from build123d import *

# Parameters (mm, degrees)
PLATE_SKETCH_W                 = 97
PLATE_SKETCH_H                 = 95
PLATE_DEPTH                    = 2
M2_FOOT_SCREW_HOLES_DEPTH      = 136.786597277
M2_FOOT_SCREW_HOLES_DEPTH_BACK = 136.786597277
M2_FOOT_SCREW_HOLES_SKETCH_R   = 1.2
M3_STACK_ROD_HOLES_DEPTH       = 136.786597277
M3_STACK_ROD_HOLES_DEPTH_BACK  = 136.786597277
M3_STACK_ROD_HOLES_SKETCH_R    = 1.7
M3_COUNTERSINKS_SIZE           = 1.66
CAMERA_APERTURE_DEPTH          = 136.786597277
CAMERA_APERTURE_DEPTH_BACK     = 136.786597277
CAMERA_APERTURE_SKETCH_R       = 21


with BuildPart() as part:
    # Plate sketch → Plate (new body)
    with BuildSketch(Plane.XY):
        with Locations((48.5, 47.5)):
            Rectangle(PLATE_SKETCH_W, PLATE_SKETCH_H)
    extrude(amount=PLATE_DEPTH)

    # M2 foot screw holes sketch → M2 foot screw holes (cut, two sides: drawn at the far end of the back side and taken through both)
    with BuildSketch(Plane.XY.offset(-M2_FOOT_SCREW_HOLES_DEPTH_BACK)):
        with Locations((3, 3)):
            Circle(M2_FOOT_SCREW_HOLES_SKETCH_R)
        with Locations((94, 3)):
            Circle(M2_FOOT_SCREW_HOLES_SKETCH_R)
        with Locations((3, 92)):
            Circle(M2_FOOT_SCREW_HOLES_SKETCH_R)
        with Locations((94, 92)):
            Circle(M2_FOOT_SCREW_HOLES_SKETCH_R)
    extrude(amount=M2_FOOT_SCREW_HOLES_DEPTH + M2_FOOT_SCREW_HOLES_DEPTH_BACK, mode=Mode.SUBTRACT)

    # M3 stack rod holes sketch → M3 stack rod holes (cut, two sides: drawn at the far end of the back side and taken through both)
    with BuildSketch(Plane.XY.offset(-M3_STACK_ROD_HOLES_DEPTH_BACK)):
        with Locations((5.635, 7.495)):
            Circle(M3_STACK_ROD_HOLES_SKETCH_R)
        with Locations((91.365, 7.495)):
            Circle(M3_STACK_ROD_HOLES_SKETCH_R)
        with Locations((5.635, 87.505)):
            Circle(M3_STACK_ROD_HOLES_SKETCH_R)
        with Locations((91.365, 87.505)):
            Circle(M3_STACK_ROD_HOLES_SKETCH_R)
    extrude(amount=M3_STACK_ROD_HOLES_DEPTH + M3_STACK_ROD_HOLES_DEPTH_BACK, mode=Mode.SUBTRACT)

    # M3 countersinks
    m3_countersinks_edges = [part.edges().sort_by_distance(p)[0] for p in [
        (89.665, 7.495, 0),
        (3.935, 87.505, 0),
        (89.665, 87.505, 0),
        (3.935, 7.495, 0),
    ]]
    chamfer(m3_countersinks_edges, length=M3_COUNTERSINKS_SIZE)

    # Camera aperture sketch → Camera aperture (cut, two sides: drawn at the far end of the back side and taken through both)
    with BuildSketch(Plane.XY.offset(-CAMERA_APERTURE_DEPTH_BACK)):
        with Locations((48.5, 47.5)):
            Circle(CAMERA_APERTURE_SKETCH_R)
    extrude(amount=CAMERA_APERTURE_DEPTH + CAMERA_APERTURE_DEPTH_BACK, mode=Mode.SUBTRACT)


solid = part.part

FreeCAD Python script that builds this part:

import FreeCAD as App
import Part
import Sketcher

V = App.Vector


def edges_at(feature, points):
    """Names of the edges that pass closest to the given points."""
    edges = feature.Shape.Edges
    near = lambda p: min(range(len(edges)), key=lambda i: edges[i].distToShape(Part.Vertex(*p))[0])
    return sorted({f"Edge{near(p) + 1}" for p in points})


def add_polygon(sketch, points):
    """Adds a closed chain of lines whose ends are joined by coincident constraints."""
    first, n = sketch.GeometryCount, len(points)
    for a, b in zip(points, points[1:] + points[:1]):
        sketch.addGeometry(Part.LineSegment(App.Vector(*a, 0), App.Vector(*b, 0)), False)
    for i in range(n):
        sketch.addConstraint(Sketcher.Constraint("Coincident", first + i, 2, first + (i + 1) % n, 1))

doc = App.newDocument("Part")
body = doc.addObject("PartDesign::Body", "Body")

# Sketch on XY plane
sketch1 = body.newObject("Sketcher::SketchObject", "Sketch")
sketch1.AttachmentSupport = (doc.getObject("XY_Plane"), [""])
sketch1.MapMode = "FlatFace"
add_polygon(sketch1, [(0, 95), (0, 0), (97, 0), (97, 95)])  # lines 0-3
sketch1.addConstraint(Sketcher.Constraint("Vertical", 0))
sketch1.addConstraint(Sketcher.Constraint("Horizontal", 1))
sketch1.addConstraint(Sketcher.Constraint("Vertical", 2))
sketch1.addConstraint(Sketcher.Constraint("Horizontal", 3))
sketch1.addConstraint(Sketcher.Constraint("Coincident", 0, 2, -1, 1))
sketch1.addConstraint(Sketcher.Constraint("DistanceX", 1, 1, 1, 2, 97.0))
sketch1.addConstraint(Sketcher.Constraint("DistanceY", 0, 2, 0, 1, 95.0))
pad1 = body.newObject("PartDesign::Pad", "Pad")
pad1.Profile = sketch1
pad1.Length = 2

# Sketch on XY plane
sketch2 = body.newObject("Sketcher::SketchObject", "Sketch001")
sketch2.AttachmentSupport = (doc.getObject("XY_Plane"), [""])
sketch2.MapMode = "FlatFace"
sketch2.addGeometry(Part.Circle(V(3, 3, 0), V(0, 0, 1), 1.2), False)
sketch2.addGeometry(Part.Circle(V(94, 3, 0), V(0, 0, 1), 1.2), False)
sketch2.addGeometry(Part.Circle(V(3, 92, 0), V(0, 0, 1), 1.2), False)
sketch2.addGeometry(Part.Circle(V(94, 92, 0), V(0, 0, 1), 1.2), False)
sketch2.addConstraint(Sketcher.Constraint("Equal", 0, 1))
sketch2.addConstraint(Sketcher.Constraint("Equal", 1, 2))
sketch2.addConstraint(Sketcher.Constraint("Equal", 2, 3))
sketch2.addConstraint(Sketcher.Constraint("Horizontal", 0, 3, 1, 3))
sketch2.addConstraint(Sketcher.Constraint("Horizontal", 2, 3, 3, 3))
sketch2.addConstraint(Sketcher.Constraint("Vertical", 0, 3, 2, 3))
sketch2.addConstraint(Sketcher.Constraint("Vertical", 1, 3, 3, 3))
sketch2.addConstraint(Sketcher.Constraint("Diameter", 0, 2.4))
sketch2.addConstraint(Sketcher.Constraint("DistanceX", -1, 1, 0, 3, 3.0))
sketch2.addConstraint(Sketcher.Constraint("DistanceY", -1, 1, 0, 3, 3.0))
sketch2.addConstraint(Sketcher.Constraint("DistanceX", -1, 1, 1, 3, 94.0))
sketch2.addConstraint(Sketcher.Constraint("DistanceY", -1, 1, 2, 3, 92.0))
pocket1 = body.newObject("PartDesign::Pocket", "Pocket")
pocket1.Profile = sketch2
pocket1.Type = "ThroughAll"
pocket1.Midplane = True

# Sketch on XY plane
sketch3 = body.newObject("Sketcher::SketchObject", "Sketch002")
sketch3.AttachmentSupport = (doc.getObject("XY_Plane"), [""])
sketch3.MapMode = "FlatFace"
sketch3.addGeometry(Part.Circle(V(5.635, 7.495, 0), V(0, 0, 1), 1.7), False)
sketch3.addGeometry(Part.Circle(V(91.365, 7.495, 0), V(0, 0, 1), 1.7), False)
sketch3.addGeometry(Part.Circle(V(5.635, 87.505, 0), V(0, 0, 1), 1.7), False)
sketch3.addGeometry(Part.Circle(V(91.365, 87.505, 0), V(0, 0, 1), 1.7), False)
sketch3.addConstraint(Sketcher.Constraint("Equal", 0, 1))
sketch3.addConstraint(Sketcher.Constraint("Equal", 1, 2))
sketch3.addConstraint(Sketcher.Constraint("Equal", 2, 3))
sketch3.addConstraint(Sketcher.Constraint("Horizontal", 0, 3, 1, 3))
sketch3.addConstraint(Sketcher.Constraint("Horizontal", 2, 3, 3, 3))
sketch3.addConstraint(Sketcher.Constraint("Vertical", 0, 3, 2, 3))
sketch3.addConstraint(Sketcher.Constraint("Vertical", 1, 3, 3, 3))
sketch3.addConstraint(Sketcher.Constraint("Diameter", 0, 3.4))
sketch3.addConstraint(Sketcher.Constraint("DistanceX", 0, 3, 1, 3, 85.73))
sketch3.addConstraint(Sketcher.Constraint("DistanceY", 0, 3, 2, 3, 80.01))
sketch3.addConstraint(Sketcher.Constraint("DistanceX", -1, 1, 0, 3, 5.635))
sketch3.addConstraint(Sketcher.Constraint("DistanceY", -1, 1, 0, 3, 7.495))
pocket2 = body.newObject("PartDesign::Pocket", "Pocket001")
pocket2.Profile = sketch3
pocket2.Type = "ThroughAll"
pocket2.Midplane = True
doc.recompute()

chamfer = body.newObject("PartDesign::Chamfer", "Chamfer")
chamfer.Base = (pocket2, edges_at(pocket2, [
    (89.665, 7.495, 0),
    (3.935, 87.505, 0),
    (89.665, 87.505, 0),
    (3.935, 7.495, 0),
]))
chamfer.Size = 1.66

# Sketch on XY plane
sketch4 = body.newObject("Sketcher::SketchObject", "Sketch003")
sketch4.AttachmentSupport = (doc.getObject("XY_Plane"), [""])
sketch4.MapMode = "FlatFace"
sketch4.addGeometry(Part.Circle(V(48.5, 47.5, 0), V(0, 0, 1), 21), False)
sketch4.addConstraint(Sketcher.Constraint("Diameter", 0, 42.0))
sketch4.addConstraint(Sketcher.Constraint("DistanceX", -1, 1, 0, 3, 48.5))
sketch4.addConstraint(Sketcher.Constraint("DistanceY", -1, 1, 0, 3, 47.5))
pocket3 = body.newObject("PartDesign::Pocket", "Pocket002")
pocket3.Profile = sketch4
pocket3.Type = "ThroughAll"
pocket3.Midplane = True

doc.recompute()
